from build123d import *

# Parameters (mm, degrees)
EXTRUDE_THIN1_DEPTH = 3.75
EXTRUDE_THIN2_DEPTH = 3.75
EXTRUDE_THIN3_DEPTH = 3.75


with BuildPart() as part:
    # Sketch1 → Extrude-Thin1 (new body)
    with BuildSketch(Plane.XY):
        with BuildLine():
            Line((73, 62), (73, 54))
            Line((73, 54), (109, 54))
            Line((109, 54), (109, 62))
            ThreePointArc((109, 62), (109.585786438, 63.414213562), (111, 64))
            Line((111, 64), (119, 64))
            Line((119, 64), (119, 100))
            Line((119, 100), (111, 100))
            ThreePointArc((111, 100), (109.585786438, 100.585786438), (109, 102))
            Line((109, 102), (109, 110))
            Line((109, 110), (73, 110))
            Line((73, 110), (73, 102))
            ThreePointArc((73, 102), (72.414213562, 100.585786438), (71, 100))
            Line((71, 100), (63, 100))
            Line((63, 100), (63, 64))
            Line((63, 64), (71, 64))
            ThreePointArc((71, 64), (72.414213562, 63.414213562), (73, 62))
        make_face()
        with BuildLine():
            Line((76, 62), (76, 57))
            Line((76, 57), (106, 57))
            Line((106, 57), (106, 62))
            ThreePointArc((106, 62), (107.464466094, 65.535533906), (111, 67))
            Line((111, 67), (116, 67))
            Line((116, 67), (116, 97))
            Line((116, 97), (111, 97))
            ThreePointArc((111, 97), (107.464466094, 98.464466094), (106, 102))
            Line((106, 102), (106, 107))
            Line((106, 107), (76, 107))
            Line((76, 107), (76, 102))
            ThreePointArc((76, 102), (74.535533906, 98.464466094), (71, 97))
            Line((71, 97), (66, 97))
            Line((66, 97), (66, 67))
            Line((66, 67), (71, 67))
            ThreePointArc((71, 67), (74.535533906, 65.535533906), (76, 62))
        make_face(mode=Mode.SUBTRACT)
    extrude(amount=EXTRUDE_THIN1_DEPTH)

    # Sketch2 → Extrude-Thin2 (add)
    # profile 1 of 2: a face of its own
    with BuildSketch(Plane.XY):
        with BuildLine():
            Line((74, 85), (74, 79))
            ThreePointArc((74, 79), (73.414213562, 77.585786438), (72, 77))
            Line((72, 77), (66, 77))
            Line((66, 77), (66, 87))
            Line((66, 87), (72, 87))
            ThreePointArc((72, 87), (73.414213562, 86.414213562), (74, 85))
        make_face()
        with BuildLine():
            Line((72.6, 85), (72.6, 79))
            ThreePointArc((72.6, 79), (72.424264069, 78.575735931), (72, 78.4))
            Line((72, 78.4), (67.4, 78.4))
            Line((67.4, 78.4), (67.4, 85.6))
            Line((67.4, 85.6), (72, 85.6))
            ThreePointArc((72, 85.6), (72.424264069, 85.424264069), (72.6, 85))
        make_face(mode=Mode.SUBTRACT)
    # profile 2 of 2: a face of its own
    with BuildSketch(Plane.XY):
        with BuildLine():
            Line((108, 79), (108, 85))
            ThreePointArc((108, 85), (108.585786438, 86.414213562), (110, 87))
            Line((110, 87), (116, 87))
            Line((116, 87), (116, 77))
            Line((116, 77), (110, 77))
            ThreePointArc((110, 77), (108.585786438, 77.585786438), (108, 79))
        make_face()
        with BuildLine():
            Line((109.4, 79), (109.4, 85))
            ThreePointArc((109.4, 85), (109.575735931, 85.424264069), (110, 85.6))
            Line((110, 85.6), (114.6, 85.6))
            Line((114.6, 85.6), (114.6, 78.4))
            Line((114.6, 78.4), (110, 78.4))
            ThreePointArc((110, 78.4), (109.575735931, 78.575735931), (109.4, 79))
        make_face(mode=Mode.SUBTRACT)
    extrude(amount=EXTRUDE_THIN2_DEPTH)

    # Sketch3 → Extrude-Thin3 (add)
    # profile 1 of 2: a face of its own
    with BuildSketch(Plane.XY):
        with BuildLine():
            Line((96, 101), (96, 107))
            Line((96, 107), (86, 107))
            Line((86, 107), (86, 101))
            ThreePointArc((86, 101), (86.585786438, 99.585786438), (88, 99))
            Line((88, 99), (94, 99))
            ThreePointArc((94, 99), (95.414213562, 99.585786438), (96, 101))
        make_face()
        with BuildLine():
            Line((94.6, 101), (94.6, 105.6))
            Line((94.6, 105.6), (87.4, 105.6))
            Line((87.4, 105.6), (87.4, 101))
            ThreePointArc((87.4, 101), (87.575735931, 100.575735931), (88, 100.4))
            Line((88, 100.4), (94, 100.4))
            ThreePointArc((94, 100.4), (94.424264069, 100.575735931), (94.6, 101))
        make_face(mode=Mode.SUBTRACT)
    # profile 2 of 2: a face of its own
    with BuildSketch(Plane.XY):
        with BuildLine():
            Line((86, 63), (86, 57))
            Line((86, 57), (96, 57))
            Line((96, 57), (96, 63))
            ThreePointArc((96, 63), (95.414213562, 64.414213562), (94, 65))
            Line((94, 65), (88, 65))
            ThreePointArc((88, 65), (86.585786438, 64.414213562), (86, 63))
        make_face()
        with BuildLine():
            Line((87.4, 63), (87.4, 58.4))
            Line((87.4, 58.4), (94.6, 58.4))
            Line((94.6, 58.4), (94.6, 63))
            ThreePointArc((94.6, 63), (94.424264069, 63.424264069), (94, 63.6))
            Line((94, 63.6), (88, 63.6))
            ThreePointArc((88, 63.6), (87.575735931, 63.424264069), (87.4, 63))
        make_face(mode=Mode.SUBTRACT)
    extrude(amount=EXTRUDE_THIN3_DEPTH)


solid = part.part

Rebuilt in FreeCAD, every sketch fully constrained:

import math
import FreeCAD as App
import Part
import Sketcher
Q = App.Units.Quantity

doc = App.newDocument("Part")
body = doc.addObject("PartDesign::Body", "Body")

# Sketch on XY plane
sketch1 = body.newObject("Sketcher::SketchObject", "Sketch")
sketch1.AttachmentSupport = (doc.getObject("XY_Plane"), [""])
sketch1.MapMode = "FlatFace"
sketch1.addGeometry([
    Part.LineSegment(App.Vector(73, 62, 0), App.Vector(73, 54, 0)),  # 0
    Part.LineSegment(App.Vector(73, 54, 0), App.Vector(109, 54, 0)),  # 1
    Part.LineSegment(App.Vector(109, 54, 0), App.Vector(109, 62, 0)),  # 2
    Part.ArcOfCircle(Part.Circle(App.Vector(111, 62, 0), App.Vector(0, 0, 1), 2), math.radians(90), math.radians(180)),  # 3
    Part.LineSegment(App.Vector(111, 64, 0), App.Vector(119, 64, 0)),  # 4
    Part.LineSegment(App.Vector(119, 64, 0), App.Vector(119, 100, 0)),  # 5
    Part.LineSegment(App.Vector(119, 100, 0), App.Vector(111, 100, 0)),  # 6
    Part.ArcOfCircle(Part.Circle(App.Vector(111, 102, 0), App.Vector(0, 0, 1), 2), math.radians(-180), math.radians(-90)),  # 7
    Part.LineSegment(App.Vector(109, 102, 0), App.Vector(109, 110, 0)),  # 8
    Part.LineSegment(App.Vector(109, 110, 0), App.Vector(73, 110, 0)),  # 9
    Part.LineSegment(App.Vector(73, 110, 0), App.Vector(73, 102, 0)),  # 10
    Part.ArcOfCircle(Part.Circle(App.Vector(71, 102, 0), App.Vector(0, 0, 1), 2), math.radians(-90), math.radians(0)),  # 11
    Part.LineSegment(App.Vector(71, 100, 0), App.Vector(63, 100, 0)),  # 12
    Part.LineSegment(App.Vector(63, 100, 0), App.Vector(63, 64, 0)),  # 13
    Part.LineSegment(App.Vector(63, 64, 0), App.Vector(71, 64, 0)),  # 14
    Part.ArcOfCircle(Part.Circle(App.Vector(71, 62, 0), App.Vector(0, 0, 1), 2), math.radians(0), math.radians(90)),  # 15
    Part.LineSegment(App.Vector(76, 57, 0), App.Vector(76, 62, 0)),  # 16
    Part.ArcOfCircle(Part.Circle(App.Vector(71, 62, 0), App.Vector(0, 0, 1), 5), math.radians(0), math.radians(90)),  # 17
    Part.LineSegment(App.Vector(71, 67, 0), App.Vector(66, 67, 0)),  # 18
    Part.LineSegment(App.Vector(66, 67, 0), App.Vector(66, 97, 0)),  # 19
    Part.LineSegment(App.Vector(66, 97, 0), App.Vector(71, 97, 0)),  # 20
    Part.ArcOfCircle(Part.Circle(App.Vector(71, 102, 0), App.Vector(0, 0, 1), 5), math.radians(-90), math.radians(0)),  # 21
    Part.LineSegment(App.Vector(76, 102, 0), App.Vector(76, 107, 0)),  # 22
    Part.LineSegment(App.Vector(76, 107, 0), App.Vector(106, 107, 0)),  # 23
    Part.LineSegment(App.Vector(106, 107, 0), App.Vector(106, 102, 0)),  # 24
    Part.ArcOfCircle(Part.Circle(App.Vector(111, 102, 0), App.Vector(0, 0, 1), 5), math.radians(180), math.radians(270)),  # 25
    Part.LineSegment(App.Vector(111, 97, 0), App.Vector(116, 97, 0)),  # 26
    Part.LineSegment(App.Vector(116, 97, 0), App.Vector(116, 67, 0)),  # 27
    Part.LineSegment(App.Vector(116, 67, 0), App.Vector(111, 67, 0)),  # 28
    Part.ArcOfCircle(Part.Circle(App.Vector(111, 62, 0), App.Vector(0, 0, 1), 5), math.radians(90), math.radians(180)),  # 29
    Part.LineSegment(App.Vector(106, 62, 0), App.Vector(106, 57, 0)),  # 30
    Part.LineSegment(App.Vector(106, 57, 0), App.Vector(76, 57, 0)),  # 31
], False)
sketch1.addConstraint([
    Sketcher.Constraint("Coincident", 0, 2, 1, 1),
    Sketcher.Constraint("Coincident", 1, 2, 2, 1),
    Sketcher.Constraint("Tangent", 2, 2, 3, 2),
    Sketcher.Constraint("Tangent", 3, 1, 4, 1),
    Sketcher.Constraint("Coincident", 4, 2, 5, 1),
    Sketcher.Constraint("Coincident", 5, 2, 6, 1),
    Sketcher.Constraint("Tangent", 6, 2, 7, 2),
    Sketcher.Constraint("Tangent", 7, 1, 8, 1),
    Sketcher.Constraint("Coincident", 8, 2, 9, 1),
    Sketcher.Constraint("Coincident", 9, 2, 10, 1),
    Sketcher.Constraint("Tangent", 10, 2, 11, 2),
    Sketcher.Constraint("Tangent", 11, 1, 12, 1),
    Sketcher.Constraint("Coincident", 12, 2, 13, 1),
    Sketcher.Constraint("Coincident", 13, 2, 14, 1),
    Sketcher.Constraint("Tangent", 14, 2, 15, 2),
    Sketcher.Constraint("Tangent", 15, 1, 0, 1),
    Sketcher.Constraint("Tangent", 16, 2, 17, 1),
    Sketcher.Constraint("Tangent", 17, 2, 18, 1),
    Sketcher.Constraint("Coincident", 18, 2, 19, 1),
    Sketcher.Constraint("Coincident", 19, 2, 20, 1),
    Sketcher.Constraint("Tangent", 20, 2, 21, 1),
    Sketcher.Constraint("Tangent", 21, 2, 22, 1),
    Sketcher.Constraint("Coincident", 22, 2, 23, 1),
    Sketcher.Constraint("Coincident", 23, 2, 24, 1),
    Sketcher.Constraint("Tangent", 24, 2, 25, 1),
    Sketcher.Constraint("Tangent", 25, 2, 26, 1),
    Sketcher.Constraint("Coincident", 26, 2, 27, 1),
    Sketcher.Constraint("Coincident", 27, 2, 28, 1),
    Sketcher.Constraint("Tangent", 28, 2, 29, 1),
    Sketcher.Constraint("Tangent", 29, 2, 30, 1),
    Sketcher.Constraint("Coincident", 30, 2, 31, 1),
    Sketcher.Constraint("Coincident", 31, 2, 16, 1),
    Sketcher.Constraint("Vertical", 0),
    Sketcher.Constraint("Horizontal", 1),
    Sketcher.Constraint("Vertical", 2),
    Sketcher.Constraint("Horizontal", 4),
    Sketcher.Constraint("Vertical", 5),
    Sketcher.Constraint("Horizontal", 6),
    Sketcher.Constraint("Vertical", 8),
    Sketcher.Constraint("Horizontal", 9),
    Sketcher.Constraint("Vertical", 10),
    Sketcher.Constraint("Horizontal", 12),
    Sketcher.Constraint("Vertical", 13),
    Sketcher.Constraint("Horizontal", 14),
    Sketcher.Constraint("Vertical", 16),
    Sketcher.Constraint("Horizontal", 18),
    Sketcher.Constraint("Vertical", 19),
    Sketcher.Constraint("Horizontal", 20),
    Sketcher.Constraint("Vertical", 22),
    Sketcher.Constraint("Horizontal", 23),
    Sketcher.Constraint("Vertical", 24),
    Sketcher.Constraint("Horizontal", 26),
    Sketcher.Constraint("Vertical", 27),
    Sketcher.Constraint("Horizontal", 28),
    Sketcher.Constraint("Vertical", 30),
    Sketcher.Constraint("Horizontal", 31),
    Sketcher.Constraint("Coincident", 17, 3, 15, 3),
    Sketcher.Constraint("Coincident", 21, 3, 11, 3),
    Sketcher.Constraint("Coincident", 25, 3, 7, 3),
    Sketcher.Constraint("Coincident", 29, 3, 3, 3),
    Sketcher.Constraint("Equal", 3, 7),
    Sketcher.Constraint("Equal", 7, 11),
    Sketcher.Constraint("Equal", 11, 15),
    Sketcher.Constraint("Equal", 17, 21),
    Sketcher.Constraint("Equal", 21, 25),
    Sketcher.Constraint("Equal", 25, 29),
    Sketcher.Constraint("Horizontal", 7, 3, 11, 3),
    Sketcher.Constraint("Horizontal", 3, 3, 15, 3),
    Sketcher.Constraint("Vertical", 3, 3, 7, 3),
    Sketcher.Constraint("Vertical", 11, 3, 15, 3),
    Sketcher.Constraint("Equal", 6, 12),
    Sketcher.Constraint("Equal", 20, 26),
    Sketcher.Constraint("Equal", 14, 0),
    Sketcher.Constraint("Equal", 9, 5),
    Sketcher.Constraint("Equal", 2, 8),
    Sketcher.Constraint("Equal", 28, 16),
    Sketcher.Constraint("Equal", 16, 22),
    Sketcher.Constraint("Radius", 3, Q("2 mm")),
    Sketcher.Constraint("Radius", 17, Q("5 mm")),
    Sketcher.Constraint("DistanceX", 1, 1, 1, 2, Q("36 mm")),
    Sketcher.Constraint("DistanceX", 4, 1, 4, 2, Q("8 mm")),
    Sketcher.Constraint("DistanceX", 18, 2, 18, 1, Q("5 mm")),
    Sketcher.Constraint("DistanceX", -1, 1, 3, 3, Q("111 mm")),
    Sketcher.Constraint("DistanceY", -1, 1, 3, 3, Q("62 mm")),
])
pad1 = body.newObject("PartDesign::Pad", "Pad")
pad1.Profile = sketch1
pad1.Length = 3.75

# Sketch on XY plane
sketch2 = body.newObject("Sketcher::SketchObject", "Sketch001")
sketch2.AttachmentSupport = (doc.getObject("XY_Plane"), [""])
sketch2.MapMode = "FlatFace"
sketch2.addGeometry([
    Part.LineSegment(App.Vector(74, 79, 0), App.Vector(74, 85, 0)),  # 0
    Part.ArcOfCircle(Part.Circle(App.Vector(72, 85, 0), App.Vector(0, 0, 1), 2), math.radians(0), math.radians(90)),  # 1
    Part.LineSegment(App.Vector(72, 87, 0), App.Vector(66, 87, 0)),  # 2
    Part.LineSegment(App.Vector(66, 87, 0), App.Vector(66, 77, 0)),  # 3
    Part.LineSegment(App.Vector(66, 77, 0), App.Vector(72, 77, 0)),  # 4
    Part.ArcOfCircle(Part.Circle(App.Vector(72, 79, 0), App.Vector(0, 0, 1), 2), math.radians(-90), math.radians(0)),  # 5
    Part.LineSegment(App.Vector(72.6, 85, 0), App.Vector(72.6, 79, 0)),  # 6
    Part.ArcOfCircle(Part.Circle(App.Vector(72, 79, 0), App.Vector(0, 0, 1), 0.6), math.radians(-90), math.radians(0)),  # 7
    Part.LineSegment(App.Vector(72, 78.4, 0), App.Vector(67.4, 78.4, 0)),  # 8
    Part.LineSegment(App.Vector(67.4, 78.4, 0), App.Vector(67.4, 85.6, 0)),  # 9
    Part.LineSegment(App.Vector(67.4, 85.6, 0), App.Vector(72, 85.6, 0)),  # 10
    Part.ArcOfCircle(Part.Circle(App.Vector(72, 85, 0), App.Vector(0, 0, 1), 0.6), math.radians(0), math.radians(90)),  # 11
    Part.LineSegment(App.Vector(108, 85, 0), App.Vector(108, 79, 0)),  # 12
    Part.ArcOfCircle(Part.Circle(App.Vector(110, 79, 0), App.Vector(0, 0, 1), 2), math.radians(-180), math.radians(-90)),  # 13
    Part.LineSegment(App.Vector(110, 77, 0), App.Vector(116, 77, 0)),  # 14
    Part.LineSegment(App.Vector(116, 77, 0), App.Vector(116, 87, 0)),  # 15
    Part.LineSegment(App.Vector(116, 87, 0), App.Vector(110, 87, 0)),  # 16
    Part.ArcOfCircle(Part.Circle(App.Vector(110, 85, 0), App.Vector(0, 0, 1), 2), math.radians(90), math.radians(180)),  # 17
    Part.LineSegment(App.Vector(109.4, 79, 0), App.Vector(109.4, 85, 0)),  # 18
    Part.ArcOfCircle(Part.Circle(App.Vector(110, 85, 0), App.Vector(0, 0, 1), 0.6), math.radians(90), math.radians(180)),  # 19
    Part.LineSegment(App.Vector(110, 85.6, 0), App.Vector(114.6, 85.6, 0)),  # 20
    Part.LineSegment(App.Vector(114.6, 85.6, 0), App.Vector(114.6, 78.4, 0)),  # 21
    Part.LineSegment(App.Vector(114.6, 78.4, 0), App.Vector(110, 78.4, 0)),  # 22
    Part.ArcOfCircle(Part.Circle(App.Vector(110, 79, 0), App.Vector(0, 0, 1), 0.6), math.radians(180), math.radians(270)),  # 23
], False)
sketch2.addConstraint([
    Sketcher.Constraint("Tangent", 0, 2, 1, 1),
    Sketcher.Constraint("Tangent", 1, 2, 2, 1),
    Sketcher.Constraint("Coincident", 2, 2, 3, 1),
    Sketcher.Constraint("Coincident", 3, 2, 4, 1),
    Sketcher.Constraint("Tangent", 4, 2, 5, 1),
    Sketcher.Constraint("Tangent", 5, 2, 0, 1),
    Sketcher.Constraint("Tangent", 6, 2, 7, 2),
    Sketcher.Constraint("Tangent", 7, 1, 8, 1),
    Sketcher.Constraint("Coincident", 8, 2, 9, 1),
    Sketcher.Constraint("Coincident", 9, 2, 10, 1),
    Sketcher.Constraint("Tangent", 10, 2, 11, 2),
    Sketcher.Constraint("Tangent", 11, 1, 6, 1),
    Sketcher.Constraint("Tangent", 12, 2, 13, 1),
    Sketcher.Constraint("Tangent", 13, 2, 14, 1),
    Sketcher.Constraint("Coincident", 14, 2, 15, 1),
    Sketcher.Constraint("Coincident", 15, 2, 16, 1),
    Sketcher.Constraint("Tangent", 16, 2, 17, 1),
    Sketcher.Constraint("Tangent", 17, 2, 12, 1),
    Sketcher.Constraint("Tangent", 18, 2, 19, 2),
    Sketcher.Constraint("Tangent", 19, 1, 20, 1),
    Sketcher.Constraint("Coincident", 20, 2, 21, 1),
    Sketcher.Constraint("Coincident", 21, 2, 22, 1),
    Sketcher.Constraint("Tangent", 22, 2, 23, 2),
    Sketcher.Constraint("Tangent", 23, 1, 18, 1),
    Sketcher.Constraint("Vertical", 0),
    Sketcher.Constraint("Horizontal", 2),
    Sketcher.Constraint("Vertical", 3),
    Sketcher.Constraint("Horizontal", 4),
    Sketcher.Constraint("Vertical", 6),
    Sketcher.Constraint("Horizontal", 8),
    Sketcher.Constraint("Vertical", 9),
    Sketcher.Constraint("Horizontal", 10),
    Sketcher.Constraint("Vertical", 12),
    Sketcher.Constraint("Horizontal", 14),
    Sketcher.Constraint("Vertical", 15),
    Sketcher.Constraint("Horizontal", 16),
    Sketcher.Constraint("Vertical", 18),
    Sketcher.Constraint("Horizontal", 20),
    Sketcher.Constraint("Vertical", 21),
    Sketcher.Constraint("Horizontal", 22),
    Sketcher.Constraint("Coincident", 7, 3, 5, 3),
    Sketcher.Constraint("Coincident", 11, 3, 1, 3),
    Sketcher.Constraint("Coincident", 19, 3, 17, 3),
    Sketcher.Constraint("Coincident", 23, 3, 13, 3),
    Sketcher.Constraint("Equal", 1, 5),
    Sketcher.Constraint("Equal", 5, 13),
    Sketcher.Constraint("Equal", 13, 17),
    Sketcher.Constraint("Equal", 11, 19),
    Sketcher.Constraint("Horizontal", 7, 3, 13, 3),
    Sketcher.Constraint("Horizontal", 11, 3, 17, 3),
    Sketcher.Constraint("Equal", 4, 14),
    Sketcher.Constraint("Equal", 10, 20),
    Sketcher.Constraint("Equal", 16, 0),
    Sketcher.Constraint("Radius", 1, Q("2 mm")),
    Sketcher.Constraint("Radius", 7, Q("0.6 mm")),
    Sketcher.Constraint("DistanceX", 2, 2, 2, 1, Q("6 mm")),
    Sketcher.Constraint("DistanceX", 8, 2, 8, 1, Q("4.6 mm")),
    Sketcher.Constraint("DistanceX", -1, 1, 1, 3, Q("72 mm")),
    Sketcher.Constraint("DistanceY", -1, 1, 1, 3, Q("85 mm")),
    Sketcher.Constraint("DistanceX", -1, 1, 13, 3, Q("110 mm")),
])
pad2 = body.newObject("PartDesign::Pad", "Pad001")
pad2.Profile = sketch2
pad2.Length = 3.75

# Sketch on XY plane
sketch3 = body.newObject("Sketcher::SketchObject", "Sketch002")
sketch3.AttachmentSupport = (doc.getObject("XY_Plane"), [""])
sketch3.MapMode = "FlatFace"
sketch3.addGeometry([
    Part.LineSegment(App.Vector(96, 101, 0), App.Vector(96, 107, 0)),  # 0
    Part.LineSegment(App.Vector(96, 107, 0), App.Vector(86, 107, 0)),  # 1
    Part.LineSegment(App.Vector(86, 107, 0), App.Vector(86, 101, 0)),  # 2
    Part.ArcOfCircle(Part.Circle(App.Vector(88, 101, 0), App.Vector(0, 0, 1), 2), math.radians(-180), math.radians(-90)),  # 3
    Part.LineSegment(App.Vector(88, 99, 0), App.Vector(94, 99, 0)),  # 4
    Part.ArcOfCircle(Part.Circle(App.Vector(94, 101, 0), App.Vector(0, 0, 1), 2), math.radians(-90), math.radians(0)),  # 5
    Part.LineSegment(App.Vector(94.6, 105.6, 0), App.Vector(94.6, 101, 0)),  # 6
    Part.ArcOfCircle(Part.Circle(App.Vector(94, 101, 0), App.Vector(0, 0, 1), 0.6), math.radians(-90), math.radians(0)),  # 7
    Part.LineSegment(App.Vector(94, 100.4, 0), App.Vector(88, 100.4, 0)),  # 8
    Part.ArcOfCircle(Part.Circle(App.Vector(88, 101, 0), App.Vector(0, 0, 1), 0.6), math.radians(180), math.radians(270)),  # 9
    Part.LineSegment(App.Vector(87.4, 101, 0), App.Vector(87.4, 105.6, 0)),  # 10
    Part.LineSegment(App.Vector(87.4, 105.6, 0), App.Vector(94.6, 105.6, 0)),  # 11
    Part.LineSegment(App.Vector(86, 63, 0), App.Vector(86, 57, 0)),  # 12
    Part.LineSegment(App.Vector(86, 57, 0), App.Vector(96, 57, 0)),  # 13
    Part.LineSegment(App.Vector(96, 57, 0), App.Vector(96, 63, 0)),  # 14
    Part.ArcOfCircle(Part.Circle(App.Vector(94, 63, 0), App.Vector(0, 0, 1), 2), math.radians(0), math.radians(90)),  # 15
    Part.LineSegment(App.Vector(94, 65, 0), App.Vector(88, 65, 0)),  # 16
    Part.ArcOfCircle(Part.Circle(App.Vector(88, 63, 0), App.Vector(0, 0, 1), 2), math.radians(90), math.radians(180)),  # 17
    Part.LineSegment(App.Vector(87.4, 58.4, 0), App.Vector(87.4, 63, 0)),  # 18
    Part.ArcOfCircle(Part.Circle(App.Vector(88, 63, 0), App.Vector(0, 0, 1), 0.6), math.radians(90), math.radians(180)),  # 19
    Part.LineSegment(App.Vector(88, 63.6, 0), App.Vector(94, 63.6, 0)),  # 20
    Part.ArcOfCircle(Part.Circle(App.Vector(94, 63, 0), App.Vector(0, 0, 1), 0.6), math.radians(0), math.radians(90)),  # 21
    Part.LineSegment(App.Vector(94.6, 63, 0), App.Vector(94.6, 58.4, 0)),  # 22
    Part.LineSegment(App.Vector(94.6, 58.4, 0), App.Vector(87.4, 58.4, 0)),  # 23
], False)
sketch3.addConstraint([
    Sketcher.Constraint("Coincident", 0, 2, 1, 1),
    Sketcher.Constraint("Coincident", 1, 2, 2, 1),
    Sketcher.Constraint("Tangent", 2, 2, 3, 1),
    Sketcher.Constraint("Tangent", 3, 2, 4, 1),
    Sketcher.Constraint("Tangent", 4, 2, 5, 1),
    Sketcher.Constraint("Tangent", 5, 2, 0, 1),
    Sketcher.Constraint("Tangent", 6, 2, 7, 2),
    Sketcher.Constraint("Tangent", 7, 1, 8, 1),
    Sketcher.Constraint("Tangent", 8, 2, 9, 2),
    Sketcher.Constraint("Tangent", 9, 1, 10, 1),
    Sketcher.Constraint("Coincident", 10, 2, 11, 1),
    Sketcher.Constraint("Coincident", 11, 2, 6, 1),
    Sketcher.Constraint("Coincident", 12, 2, 13, 1),
    Sketcher.Constraint("Coincident", 13, 2, 14, 1),
    Sketcher.Constraint("Tangent", 14, 2, 15, 1),
    Sketcher.Constraint("Tangent", 15, 2, 16, 1),
    Sketcher.Constraint("Tangent", 16, 2, 17, 1),
    Sketcher.Constraint("Tangent", 17, 2, 12, 1),
    Sketcher.Constraint("Tangent", 18, 2, 19, 2),
    Sketcher.Constraint("Tangent", 19, 1, 20, 1),
    Sketcher.Constraint("Tangent", 20, 2, 21, 2),
    Sketcher.Constraint("Tangent", 21, 1, 22, 1),
    Sketcher.Constraint("Coincident", 22, 2, 23, 1),
    Sketcher.Constraint("Coincident", 23, 2, 18, 1),
    Sketcher.Constraint("Vertical", 0),
    Sketcher.Constraint("Horizontal", 1),
    Sketcher.Constraint("Vertical", 2),
    Sketcher.Constraint("Horizontal", 4),
    Sketcher.Constraint("Vertical", 6),
    Sketcher.Constraint("Horizontal", 8),
    Sketcher.Constraint("Vertical", 10),
    Sketcher.Constraint("Horizontal", 11),
    Sketcher.Constraint("Vertical", 12),
    Sketcher.Constraint("Horizontal", 13),
    Sketcher.Constraint("Vertical", 14),
    Sketcher.Constraint("Horizontal", 16),
    Sketcher.Constraint("Vertical", 18),
    Sketcher.Constraint("Horizontal", 20),
    Sketcher.Constraint("Vertical", 22),
    Sketcher.Constraint("Horizontal", 23),
    Sketcher.Constraint("Coincident", 7, 3, 5, 3),
    Sketcher.Constraint("Coincident", 9, 3, 3, 3),
    Sketcher.Constraint("Coincident", 19, 3, 17, 3),
    Sketcher.Constraint("Coincident", 21, 3, 15, 3),
    Sketcher.Constraint("Equal", 3, 5),
    Sketcher.Constraint("Equal", 5, 15),
    Sketcher.Constraint("Equal", 15, 17),
    Sketcher.Constraint("Equal", 9, 19),
    Sketcher.Constraint("Vertical", 7, 3, 15, 3),
    Sketcher.Constraint("Vertical", 9, 3, 17, 3),
    Sketcher.Constraint("Equal", 20, 0),
    Sketcher.Constraint("Equal", 2, 12),
    Sketcher.Constraint("Equal", 10, 18),
    Sketcher.Constraint("Radius", 3, Q("2 mm")),
    Sketcher.Constraint("Radius", 7, Q("0.6 mm")),
    Sketcher.Constraint("DistanceX", 1, 2, 1, 1, Q("10 mm")),
    Sketcher.Constraint("DistanceY", 6, 2, 6, 1, Q("4.6 mm")),
    Sketcher.Constraint("DistanceX", -1, 1, 3, 3, Q("88 mm")),
    Sketcher.Constraint("DistanceY", -1, 1, 3, 3, Q("101 mm")),
    Sketcher.Constraint("DistanceY", -1, 1, 15, 3, Q("63 mm")),
])
pad3 = body.newObject("PartDesign::Pad", "Pad002")
pad3.Profile = sketch3
pad3.Length = 3.75

doc.recompute()
